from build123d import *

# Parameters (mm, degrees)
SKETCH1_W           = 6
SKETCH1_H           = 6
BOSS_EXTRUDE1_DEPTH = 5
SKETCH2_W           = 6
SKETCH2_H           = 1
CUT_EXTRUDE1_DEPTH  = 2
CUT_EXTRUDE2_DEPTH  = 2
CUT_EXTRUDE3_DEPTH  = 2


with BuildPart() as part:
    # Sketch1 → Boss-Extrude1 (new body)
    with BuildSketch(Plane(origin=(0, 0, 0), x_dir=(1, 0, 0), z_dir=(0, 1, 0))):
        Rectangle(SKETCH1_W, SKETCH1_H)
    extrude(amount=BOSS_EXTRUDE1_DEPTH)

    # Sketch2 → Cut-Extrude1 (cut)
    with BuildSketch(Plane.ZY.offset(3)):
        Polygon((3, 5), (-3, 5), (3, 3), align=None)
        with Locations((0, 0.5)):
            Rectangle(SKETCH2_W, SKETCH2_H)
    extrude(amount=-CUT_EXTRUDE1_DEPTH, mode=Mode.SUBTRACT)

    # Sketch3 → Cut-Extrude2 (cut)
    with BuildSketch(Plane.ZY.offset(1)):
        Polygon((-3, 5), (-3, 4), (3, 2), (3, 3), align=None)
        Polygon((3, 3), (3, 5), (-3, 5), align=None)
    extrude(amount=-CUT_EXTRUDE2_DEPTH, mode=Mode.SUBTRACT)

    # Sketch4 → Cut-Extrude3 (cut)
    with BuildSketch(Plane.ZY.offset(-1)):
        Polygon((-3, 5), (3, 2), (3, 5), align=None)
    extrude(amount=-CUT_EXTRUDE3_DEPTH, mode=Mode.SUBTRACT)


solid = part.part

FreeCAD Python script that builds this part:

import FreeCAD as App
import Part
import Sketcher
from FreeCAD import Vector

doc = App.newDocument("Part")
body = doc.addObject("PartDesign::Body", "Body")

sketch1 = body.newObject("Sketcher::SketchObject", "Sketch")
sketch1.AttachmentSupport = (doc.getObject("XZ_Plane"), [""])
sketch1.MapMode = "FlatFace"
sketch1.addGeometry(Part.LineSegment(Vector(-3, -3, 0), Vector(-3, 3, 0)), False)
sketch1.addGeometry(Part.LineSegment(Vector(-3, 3, 0), Vector(3, 3, 0)), False)
sketch1.addGeometry(Part.LineSegment(Vector(3, 3, 0), Vector(3, -3, 0)), False)
sketch1.addGeometry(Part.LineSegment(Vector(3, -3, 0), Vector(-3, -3, 0)), False)
sketch1.addConstraint(Sketcher.Constraint("Coincident", 0, 2, 1, 1))
sketch1.addConstraint(Sketcher.Constraint("Coincident", 1, 2, 2, 1))
sketch1.addConstraint(Sketcher.Constraint("Coincident", 2, 2, 3, 1))
sketch1.addConstraint(Sketcher.Constraint("Coincident", 3, 2, 0, 1))
sketch1.addConstraint(Sketcher.Constraint("Vertical", 0))
sketch1.addConstraint(Sketcher.Constraint("Horizontal", 1))
sketch1.addConstraint(Sketcher.Constraint("Vertical", 2))
sketch1.addConstraint(Sketcher.Constraint("Horizontal", 3))
sketch1.addConstraint(Sketcher.Constraint("Symmetric", 0, 2, 2, 2, -1, 1))
sketch1.addConstraint(Sketcher.Constraint("Equal", 3, 0))
sketch1.addConstraint(Sketcher.Constraint("DistanceX", 1, 1, 1, 2, 6.0))
pad1 = body.newObject("PartDesign::Pad", "Pad")
pad1.Profile = sketch1
pad1.Length = 5
pad1.Reversed = True

sketch2 = body.newObject("Sketcher::SketchObject", "Sketch001")
sketch2.AttachmentSupport = (doc.getObject("YZ_Plane"), [""])
sketch2.MapMode = "FlatFace"
sketch2.AttachmentOffset = App.Placement(Vector(0, 0, -3), App.Rotation())
sketch2.addGeometry(Part.LineSegment(Vector(5, 3, 0), Vector(5, -3, 0)), False)
sketch2.addGeometry(Part.LineSegment(Vector(5, -3, 0), Vector(3, 3, 0)), False)
sketch2.addGeometry(Part.LineSegment(Vector(3, 3, 0), Vector(5, 3, 0)), False)
sketch2.addGeometry(Part.LineSegment(Vector(1, -3, 0), Vector(0, -3, 0)), False)
sketch2.addGeometry(Part.LineSegment(Vector(0, -3, 0), Vector(0, 3, 0)), False)
sketch2.addGeometry(Part.LineSegment(Vector(0, 3, 0), Vector(1, 3, 0)), False)
sketch2.addGeometry(Part.LineSegment(Vector(1, 3, 0), Vector(1, -3, 0)), False)
sketch2.addConstraint(Sketcher.Constraint("Coincident", 0, 2, 1, 1))
sketch2.addConstraint(Sketcher.Constraint("Coincident", 1, 2, 2, 1))
sketch2.addConstraint(Sketcher.Constraint("Coincident", 2, 2, 0, 1))
sketch2.addConstraint(Sketcher.Constraint("Coincident", 3, 2, 4, 1))
sketch2.addConstraint(Sketcher.Constraint("Coincident", 4, 2, 5, 1))
sketch2.addConstraint(Sketcher.Constraint("Coincident", 5, 2, 6, 1))
sketch2.addConstraint(Sketcher.Constraint("Coincident", 6, 2, 3, 1))
sketch2.addConstraint(Sketcher.Constraint("Vertical", 0))
sketch2.addConstraint(Sketcher.Constraint("Horizontal", 2))
sketch2.addConstraint(Sketcher.Constraint("Horizontal", 3))
sketch2.addConstraint(Sketcher.Constraint("Vertical", 4))
sketch2.addConstraint(Sketcher.Constraint("Horizontal", 5))
sketch2.addConstraint(Sketcher.Constraint("Vertical", 6))
sketch2.addConstraint(Sketcher.Constraint("Symmetric", 3, 2, 4, 2, -1, 1))
sketch2.addConstraint(Sketcher.Constraint("Horizontal", 0, 2, 3, 2))
sketch2.addConstraint(Sketcher.Constraint("Horizontal", 2, 2, 4, 2))
sketch2.addConstraint(Sketcher.Constraint("DistanceX", 2, 1, 2, 2, 2.0))
sketch2.addConstraint(Sketcher.Constraint("DistanceX", 3, 2, 3, 1, 1.0))
sketch2.addConstraint(Sketcher.Constraint("DistanceY", 0, 2, 0, 1, 6.0))
sketch2.addConstraint(Sketcher.Constraint("DistanceX", -1, 1, 0, 2, 5.0))
pocket1 = body.newObject("PartDesign::Pocket", "Pocket")
pocket1.Profile = sketch2
pocket1.Length = 2
pocket1.Reversed = True

sketch3 = body.newObject("Sketcher::SketchObject", "Sketch002")
sketch3.AttachmentSupport = (doc.getObject("YZ_Plane"), [""])
sketch3.MapMode = "FlatFace"
sketch3.AttachmentOffset = App.Placement(Vector(0, 0, -1), App.Rotation())
sketch3.addGeometry(Part.LineSegment(Vector(5, -3, 0), Vector(4, -3, 0)), False)
sketch3.addGeometry(Part.LineSegment(Vector(4, -3, 0), Vector(2, 3, 0)), False)
sketch3.addGeometry(Part.LineSegment(Vector(2, 3, 0), Vector(5, 3, 0)), False)
sketch3.addGeometry(Part.LineSegment(Vector(5, 3, 0), Vector(5, -3, 0)), False)
sketch3.addConstraint(Sketcher.Constraint("Coincident", 0, 2, 1, 1))
sketch3.addConstraint(Sketcher.Constraint("Coincident", 1, 2, 2, 1))
sketch3.addConstraint(Sketcher.Constraint("Coincident", 2, 2, 3, 1))
sketch3.addConstraint(Sketcher.Constraint("Coincident", 3, 2, 0, 1))
sketch3.addConstraint(Sketcher.Constraint("Horizontal", 0))
sketch3.addConstraint(Sketcher.Constraint("Horizontal", 2))
sketch3.addConstraint(Sketcher.Constraint("Vertical", 3))
sketch3.addConstraint(Sketcher.Constraint("DistanceX", 0, 2, 0, 1, 1.0))
sketch3.addConstraint(Sketcher.Constraint("DistanceX", 2, 1, 2, 2, 3.0))
sketch3.addConstraint(Sketcher.Constraint("DistanceY", 3, 2, 3, 1, 6.0))
sketch3.addConstraint(Sketcher.Constraint("DistanceX", -1, 1, 0, 2, 4.0))
sketch3.addConstraint(Sketcher.Constraint("DistanceY", 0, 2, -1, 1, 3.0))
pocket2 = body.newObject("PartDesign::Pocket", "Pocket001")
pocket2.Profile = sketch3
pocket2.Length = 2
pocket2.Reversed = True

sketch4 = body.newObject("Sketcher::SketchObject", "Sketch003")
sketch4.AttachmentSupport = (doc.getObject("YZ_Plane"), [""])
sketch4.MapMode = "FlatFace"
sketch4.AttachmentOffset = App.Placement(Vector(0, 0, 1), App.Rotation())
sketch4.addGeometry(Part.LineSegment(Vector(5, -3, 0), Vector(2, 3, 0)), False)
sketch4.addGeometry(Part.LineSegment(Vector(2, 3, 0), Vector(5, 3, 0)), False)
sketch4.addGeometry(Part.LineSegment(Vector(5, 3, 0), Vector(5, -3, 0)), False)
sketch4.addConstraint(Sketcher.Constraint("Coincident", 0, 2, 1, 1))
sketch4.addConstraint(Sketcher.Constraint("Coincident", 1, 2, 2, 1))
sketch4.addConstraint(Sketcher.Constraint("Coincident", 2, 2, 0, 1))
sketch4.addConstraint(Sketcher.Constraint("Horizontal", 1))
sketch4.addConstraint(Sketcher.Constraint("Vertical", 2))
sketch4.addConstraint(Sketcher.Constraint("DistanceX", 1, 1, 1, 2, 3.0))
sketch4.addConstraint(Sketcher.Constraint("DistanceY", 2, 2, 2, 1, 6.0))
sketch4.addConstraint(Sketcher.Constraint("DistanceX", -1, 1, 0, 2, 2.0))
sketch4.addConstraint(Sketcher.Constraint("DistanceY", -1, 1, 0, 2, 3.0))
pocket3 = body.newObject("PartDesign::Pocket", "Pocket002")
pocket3.Profile = sketch4
pocket3.Length = 2
pocket3.Reversed = True

doc.recompute()
